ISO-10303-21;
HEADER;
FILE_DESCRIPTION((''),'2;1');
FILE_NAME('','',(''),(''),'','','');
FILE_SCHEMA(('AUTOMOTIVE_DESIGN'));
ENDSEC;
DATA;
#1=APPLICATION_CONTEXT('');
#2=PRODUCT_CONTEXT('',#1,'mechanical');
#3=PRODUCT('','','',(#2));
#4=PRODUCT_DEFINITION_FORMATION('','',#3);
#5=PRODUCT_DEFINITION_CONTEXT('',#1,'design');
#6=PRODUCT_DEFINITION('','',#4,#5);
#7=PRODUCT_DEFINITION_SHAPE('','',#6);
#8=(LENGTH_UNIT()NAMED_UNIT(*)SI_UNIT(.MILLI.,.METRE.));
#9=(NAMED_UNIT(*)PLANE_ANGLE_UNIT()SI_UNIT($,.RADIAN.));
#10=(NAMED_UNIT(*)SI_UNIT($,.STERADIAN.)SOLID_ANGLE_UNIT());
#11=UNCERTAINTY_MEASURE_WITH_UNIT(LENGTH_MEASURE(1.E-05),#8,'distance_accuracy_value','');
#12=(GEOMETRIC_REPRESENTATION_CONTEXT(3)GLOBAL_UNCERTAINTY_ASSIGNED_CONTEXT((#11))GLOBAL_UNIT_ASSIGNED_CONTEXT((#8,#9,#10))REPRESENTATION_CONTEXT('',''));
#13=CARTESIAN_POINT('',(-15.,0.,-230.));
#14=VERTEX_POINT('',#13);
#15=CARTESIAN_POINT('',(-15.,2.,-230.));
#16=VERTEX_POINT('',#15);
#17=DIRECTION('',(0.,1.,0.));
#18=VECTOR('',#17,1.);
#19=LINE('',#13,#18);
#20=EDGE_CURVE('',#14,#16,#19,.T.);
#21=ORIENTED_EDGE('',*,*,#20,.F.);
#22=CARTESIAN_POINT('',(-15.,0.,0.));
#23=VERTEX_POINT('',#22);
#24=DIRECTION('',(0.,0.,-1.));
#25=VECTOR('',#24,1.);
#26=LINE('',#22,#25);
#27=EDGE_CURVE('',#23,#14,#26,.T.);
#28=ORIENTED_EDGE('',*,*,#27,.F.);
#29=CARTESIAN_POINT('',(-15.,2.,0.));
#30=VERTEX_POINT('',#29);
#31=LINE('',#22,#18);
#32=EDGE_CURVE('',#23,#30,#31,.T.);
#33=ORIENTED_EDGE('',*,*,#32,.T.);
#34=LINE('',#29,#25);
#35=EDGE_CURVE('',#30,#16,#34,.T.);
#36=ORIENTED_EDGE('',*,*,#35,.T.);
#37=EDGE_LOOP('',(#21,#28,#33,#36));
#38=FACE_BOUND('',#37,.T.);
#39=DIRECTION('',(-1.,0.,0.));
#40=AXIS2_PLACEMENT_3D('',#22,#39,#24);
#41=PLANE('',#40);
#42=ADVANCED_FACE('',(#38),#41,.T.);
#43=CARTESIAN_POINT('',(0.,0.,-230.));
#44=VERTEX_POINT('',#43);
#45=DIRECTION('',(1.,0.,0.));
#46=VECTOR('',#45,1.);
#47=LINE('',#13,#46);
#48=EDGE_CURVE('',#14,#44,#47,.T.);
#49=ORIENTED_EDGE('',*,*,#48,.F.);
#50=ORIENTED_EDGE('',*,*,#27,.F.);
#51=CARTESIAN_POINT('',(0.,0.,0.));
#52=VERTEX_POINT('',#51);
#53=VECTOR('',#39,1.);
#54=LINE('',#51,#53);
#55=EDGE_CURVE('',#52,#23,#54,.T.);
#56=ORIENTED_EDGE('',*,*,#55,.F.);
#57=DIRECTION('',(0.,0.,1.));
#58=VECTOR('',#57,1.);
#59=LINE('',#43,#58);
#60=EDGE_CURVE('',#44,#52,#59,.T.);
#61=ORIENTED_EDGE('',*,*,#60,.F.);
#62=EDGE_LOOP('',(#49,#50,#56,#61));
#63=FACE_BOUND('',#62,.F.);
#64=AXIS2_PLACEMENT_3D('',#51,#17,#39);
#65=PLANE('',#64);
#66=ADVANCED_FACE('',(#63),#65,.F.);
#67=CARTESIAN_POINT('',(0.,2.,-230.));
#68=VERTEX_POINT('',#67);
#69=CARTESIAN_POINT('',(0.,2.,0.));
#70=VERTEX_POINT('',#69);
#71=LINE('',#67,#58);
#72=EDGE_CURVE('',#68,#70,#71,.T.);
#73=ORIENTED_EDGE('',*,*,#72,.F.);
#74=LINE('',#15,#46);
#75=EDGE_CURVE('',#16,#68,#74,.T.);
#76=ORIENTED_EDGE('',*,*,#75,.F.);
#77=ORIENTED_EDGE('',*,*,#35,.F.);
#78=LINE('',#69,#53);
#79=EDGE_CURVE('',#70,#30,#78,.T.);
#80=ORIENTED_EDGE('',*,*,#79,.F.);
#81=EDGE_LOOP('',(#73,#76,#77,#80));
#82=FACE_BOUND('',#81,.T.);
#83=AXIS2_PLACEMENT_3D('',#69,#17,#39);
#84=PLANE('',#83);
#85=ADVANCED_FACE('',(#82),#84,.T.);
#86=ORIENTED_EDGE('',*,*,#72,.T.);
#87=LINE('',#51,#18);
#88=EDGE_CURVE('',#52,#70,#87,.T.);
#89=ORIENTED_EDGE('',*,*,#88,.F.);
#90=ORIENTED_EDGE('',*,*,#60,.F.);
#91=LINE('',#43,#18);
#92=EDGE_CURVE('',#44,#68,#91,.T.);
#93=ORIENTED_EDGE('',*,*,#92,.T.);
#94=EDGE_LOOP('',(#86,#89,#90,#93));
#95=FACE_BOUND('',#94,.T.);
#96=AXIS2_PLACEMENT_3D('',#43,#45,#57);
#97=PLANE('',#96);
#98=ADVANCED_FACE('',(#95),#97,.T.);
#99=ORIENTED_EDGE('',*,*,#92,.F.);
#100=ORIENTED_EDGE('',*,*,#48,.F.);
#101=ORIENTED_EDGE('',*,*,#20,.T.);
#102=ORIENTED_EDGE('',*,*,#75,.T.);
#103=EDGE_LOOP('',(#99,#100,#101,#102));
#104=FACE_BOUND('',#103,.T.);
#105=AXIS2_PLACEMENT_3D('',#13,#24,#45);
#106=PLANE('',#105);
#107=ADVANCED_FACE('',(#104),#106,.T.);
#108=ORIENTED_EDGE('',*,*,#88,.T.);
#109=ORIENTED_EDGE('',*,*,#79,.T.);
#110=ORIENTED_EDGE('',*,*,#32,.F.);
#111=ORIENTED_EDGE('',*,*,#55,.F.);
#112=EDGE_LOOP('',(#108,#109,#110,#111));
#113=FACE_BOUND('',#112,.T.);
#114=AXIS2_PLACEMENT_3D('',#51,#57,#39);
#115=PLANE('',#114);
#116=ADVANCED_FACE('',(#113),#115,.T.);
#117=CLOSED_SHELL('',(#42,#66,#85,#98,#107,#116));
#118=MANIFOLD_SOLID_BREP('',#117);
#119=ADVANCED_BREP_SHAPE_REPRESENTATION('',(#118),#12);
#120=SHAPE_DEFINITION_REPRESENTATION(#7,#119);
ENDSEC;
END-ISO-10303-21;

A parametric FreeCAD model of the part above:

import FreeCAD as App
import Part
import Sketcher

doc = App.newDocument("Part")
body = doc.addObject("PartDesign::Body", "Body")

# Sketch on XZ plane
sketch1 = body.newObject("Sketcher::SketchObject", "Sketch")
sketch1.AttachmentSupport = (doc.getObject("XZ_Plane"), [""])
sketch1.MapMode = "FlatFace"
sketch1.addGeometry(Part.LineSegment(App.Vector(-15, 0, 0), App.Vector(0, 0, 0)), False)
sketch1.addGeometry(Part.LineSegment(App.Vector(0, 0, 0), App.Vector(0, -230, 0)), False)
sketch1.addGeometry(Part.LineSegment(App.Vector(0, -230, 0), App.Vector(-15, -230, 0)), False)
sketch1.addGeometry(Part.LineSegment(App.Vector(-15, -230, 0), App.Vector(-15, 0, 0)), False)
sketch1.addConstraint(Sketcher.Constraint("Coincident", 0, 2, 1, 1))
sketch1.addConstraint(Sketcher.Constraint("Coincident", 1, 2, 2, 1))
sketch1.addConstraint(Sketcher.Constraint("Coincident", 2, 2, 3, 1))
sketch1.addConstraint(Sketcher.Constraint("Coincident", 3, 2, 0, 1))
sketch1.addConstraint(Sketcher.Constraint("Horizontal", 0))
sketch1.addConstraint(Sketcher.Constraint("Vertical", 1))
sketch1.addConstraint(Sketcher.Constraint("Horizontal", 2))
sketch1.addConstraint(Sketcher.Constraint("Vertical", 3))
sketch1.addConstraint(Sketcher.Constraint("Coincident", 0, 2, -1, 1))
sketch1.addConstraint(Sketcher.Constraint("DistanceX", 0, 1, 0, 2, 15.0))
sketch1.addConstraint(Sketcher.Constraint("DistanceY", 1, 2, 1, 1, 230.0))
pad1 = body.newObject("PartDesign::Pad", "Pad")
pad1.Profile = sketch1
pad1.Length = 2
pad1.Reversed = True

doc.recompute()
